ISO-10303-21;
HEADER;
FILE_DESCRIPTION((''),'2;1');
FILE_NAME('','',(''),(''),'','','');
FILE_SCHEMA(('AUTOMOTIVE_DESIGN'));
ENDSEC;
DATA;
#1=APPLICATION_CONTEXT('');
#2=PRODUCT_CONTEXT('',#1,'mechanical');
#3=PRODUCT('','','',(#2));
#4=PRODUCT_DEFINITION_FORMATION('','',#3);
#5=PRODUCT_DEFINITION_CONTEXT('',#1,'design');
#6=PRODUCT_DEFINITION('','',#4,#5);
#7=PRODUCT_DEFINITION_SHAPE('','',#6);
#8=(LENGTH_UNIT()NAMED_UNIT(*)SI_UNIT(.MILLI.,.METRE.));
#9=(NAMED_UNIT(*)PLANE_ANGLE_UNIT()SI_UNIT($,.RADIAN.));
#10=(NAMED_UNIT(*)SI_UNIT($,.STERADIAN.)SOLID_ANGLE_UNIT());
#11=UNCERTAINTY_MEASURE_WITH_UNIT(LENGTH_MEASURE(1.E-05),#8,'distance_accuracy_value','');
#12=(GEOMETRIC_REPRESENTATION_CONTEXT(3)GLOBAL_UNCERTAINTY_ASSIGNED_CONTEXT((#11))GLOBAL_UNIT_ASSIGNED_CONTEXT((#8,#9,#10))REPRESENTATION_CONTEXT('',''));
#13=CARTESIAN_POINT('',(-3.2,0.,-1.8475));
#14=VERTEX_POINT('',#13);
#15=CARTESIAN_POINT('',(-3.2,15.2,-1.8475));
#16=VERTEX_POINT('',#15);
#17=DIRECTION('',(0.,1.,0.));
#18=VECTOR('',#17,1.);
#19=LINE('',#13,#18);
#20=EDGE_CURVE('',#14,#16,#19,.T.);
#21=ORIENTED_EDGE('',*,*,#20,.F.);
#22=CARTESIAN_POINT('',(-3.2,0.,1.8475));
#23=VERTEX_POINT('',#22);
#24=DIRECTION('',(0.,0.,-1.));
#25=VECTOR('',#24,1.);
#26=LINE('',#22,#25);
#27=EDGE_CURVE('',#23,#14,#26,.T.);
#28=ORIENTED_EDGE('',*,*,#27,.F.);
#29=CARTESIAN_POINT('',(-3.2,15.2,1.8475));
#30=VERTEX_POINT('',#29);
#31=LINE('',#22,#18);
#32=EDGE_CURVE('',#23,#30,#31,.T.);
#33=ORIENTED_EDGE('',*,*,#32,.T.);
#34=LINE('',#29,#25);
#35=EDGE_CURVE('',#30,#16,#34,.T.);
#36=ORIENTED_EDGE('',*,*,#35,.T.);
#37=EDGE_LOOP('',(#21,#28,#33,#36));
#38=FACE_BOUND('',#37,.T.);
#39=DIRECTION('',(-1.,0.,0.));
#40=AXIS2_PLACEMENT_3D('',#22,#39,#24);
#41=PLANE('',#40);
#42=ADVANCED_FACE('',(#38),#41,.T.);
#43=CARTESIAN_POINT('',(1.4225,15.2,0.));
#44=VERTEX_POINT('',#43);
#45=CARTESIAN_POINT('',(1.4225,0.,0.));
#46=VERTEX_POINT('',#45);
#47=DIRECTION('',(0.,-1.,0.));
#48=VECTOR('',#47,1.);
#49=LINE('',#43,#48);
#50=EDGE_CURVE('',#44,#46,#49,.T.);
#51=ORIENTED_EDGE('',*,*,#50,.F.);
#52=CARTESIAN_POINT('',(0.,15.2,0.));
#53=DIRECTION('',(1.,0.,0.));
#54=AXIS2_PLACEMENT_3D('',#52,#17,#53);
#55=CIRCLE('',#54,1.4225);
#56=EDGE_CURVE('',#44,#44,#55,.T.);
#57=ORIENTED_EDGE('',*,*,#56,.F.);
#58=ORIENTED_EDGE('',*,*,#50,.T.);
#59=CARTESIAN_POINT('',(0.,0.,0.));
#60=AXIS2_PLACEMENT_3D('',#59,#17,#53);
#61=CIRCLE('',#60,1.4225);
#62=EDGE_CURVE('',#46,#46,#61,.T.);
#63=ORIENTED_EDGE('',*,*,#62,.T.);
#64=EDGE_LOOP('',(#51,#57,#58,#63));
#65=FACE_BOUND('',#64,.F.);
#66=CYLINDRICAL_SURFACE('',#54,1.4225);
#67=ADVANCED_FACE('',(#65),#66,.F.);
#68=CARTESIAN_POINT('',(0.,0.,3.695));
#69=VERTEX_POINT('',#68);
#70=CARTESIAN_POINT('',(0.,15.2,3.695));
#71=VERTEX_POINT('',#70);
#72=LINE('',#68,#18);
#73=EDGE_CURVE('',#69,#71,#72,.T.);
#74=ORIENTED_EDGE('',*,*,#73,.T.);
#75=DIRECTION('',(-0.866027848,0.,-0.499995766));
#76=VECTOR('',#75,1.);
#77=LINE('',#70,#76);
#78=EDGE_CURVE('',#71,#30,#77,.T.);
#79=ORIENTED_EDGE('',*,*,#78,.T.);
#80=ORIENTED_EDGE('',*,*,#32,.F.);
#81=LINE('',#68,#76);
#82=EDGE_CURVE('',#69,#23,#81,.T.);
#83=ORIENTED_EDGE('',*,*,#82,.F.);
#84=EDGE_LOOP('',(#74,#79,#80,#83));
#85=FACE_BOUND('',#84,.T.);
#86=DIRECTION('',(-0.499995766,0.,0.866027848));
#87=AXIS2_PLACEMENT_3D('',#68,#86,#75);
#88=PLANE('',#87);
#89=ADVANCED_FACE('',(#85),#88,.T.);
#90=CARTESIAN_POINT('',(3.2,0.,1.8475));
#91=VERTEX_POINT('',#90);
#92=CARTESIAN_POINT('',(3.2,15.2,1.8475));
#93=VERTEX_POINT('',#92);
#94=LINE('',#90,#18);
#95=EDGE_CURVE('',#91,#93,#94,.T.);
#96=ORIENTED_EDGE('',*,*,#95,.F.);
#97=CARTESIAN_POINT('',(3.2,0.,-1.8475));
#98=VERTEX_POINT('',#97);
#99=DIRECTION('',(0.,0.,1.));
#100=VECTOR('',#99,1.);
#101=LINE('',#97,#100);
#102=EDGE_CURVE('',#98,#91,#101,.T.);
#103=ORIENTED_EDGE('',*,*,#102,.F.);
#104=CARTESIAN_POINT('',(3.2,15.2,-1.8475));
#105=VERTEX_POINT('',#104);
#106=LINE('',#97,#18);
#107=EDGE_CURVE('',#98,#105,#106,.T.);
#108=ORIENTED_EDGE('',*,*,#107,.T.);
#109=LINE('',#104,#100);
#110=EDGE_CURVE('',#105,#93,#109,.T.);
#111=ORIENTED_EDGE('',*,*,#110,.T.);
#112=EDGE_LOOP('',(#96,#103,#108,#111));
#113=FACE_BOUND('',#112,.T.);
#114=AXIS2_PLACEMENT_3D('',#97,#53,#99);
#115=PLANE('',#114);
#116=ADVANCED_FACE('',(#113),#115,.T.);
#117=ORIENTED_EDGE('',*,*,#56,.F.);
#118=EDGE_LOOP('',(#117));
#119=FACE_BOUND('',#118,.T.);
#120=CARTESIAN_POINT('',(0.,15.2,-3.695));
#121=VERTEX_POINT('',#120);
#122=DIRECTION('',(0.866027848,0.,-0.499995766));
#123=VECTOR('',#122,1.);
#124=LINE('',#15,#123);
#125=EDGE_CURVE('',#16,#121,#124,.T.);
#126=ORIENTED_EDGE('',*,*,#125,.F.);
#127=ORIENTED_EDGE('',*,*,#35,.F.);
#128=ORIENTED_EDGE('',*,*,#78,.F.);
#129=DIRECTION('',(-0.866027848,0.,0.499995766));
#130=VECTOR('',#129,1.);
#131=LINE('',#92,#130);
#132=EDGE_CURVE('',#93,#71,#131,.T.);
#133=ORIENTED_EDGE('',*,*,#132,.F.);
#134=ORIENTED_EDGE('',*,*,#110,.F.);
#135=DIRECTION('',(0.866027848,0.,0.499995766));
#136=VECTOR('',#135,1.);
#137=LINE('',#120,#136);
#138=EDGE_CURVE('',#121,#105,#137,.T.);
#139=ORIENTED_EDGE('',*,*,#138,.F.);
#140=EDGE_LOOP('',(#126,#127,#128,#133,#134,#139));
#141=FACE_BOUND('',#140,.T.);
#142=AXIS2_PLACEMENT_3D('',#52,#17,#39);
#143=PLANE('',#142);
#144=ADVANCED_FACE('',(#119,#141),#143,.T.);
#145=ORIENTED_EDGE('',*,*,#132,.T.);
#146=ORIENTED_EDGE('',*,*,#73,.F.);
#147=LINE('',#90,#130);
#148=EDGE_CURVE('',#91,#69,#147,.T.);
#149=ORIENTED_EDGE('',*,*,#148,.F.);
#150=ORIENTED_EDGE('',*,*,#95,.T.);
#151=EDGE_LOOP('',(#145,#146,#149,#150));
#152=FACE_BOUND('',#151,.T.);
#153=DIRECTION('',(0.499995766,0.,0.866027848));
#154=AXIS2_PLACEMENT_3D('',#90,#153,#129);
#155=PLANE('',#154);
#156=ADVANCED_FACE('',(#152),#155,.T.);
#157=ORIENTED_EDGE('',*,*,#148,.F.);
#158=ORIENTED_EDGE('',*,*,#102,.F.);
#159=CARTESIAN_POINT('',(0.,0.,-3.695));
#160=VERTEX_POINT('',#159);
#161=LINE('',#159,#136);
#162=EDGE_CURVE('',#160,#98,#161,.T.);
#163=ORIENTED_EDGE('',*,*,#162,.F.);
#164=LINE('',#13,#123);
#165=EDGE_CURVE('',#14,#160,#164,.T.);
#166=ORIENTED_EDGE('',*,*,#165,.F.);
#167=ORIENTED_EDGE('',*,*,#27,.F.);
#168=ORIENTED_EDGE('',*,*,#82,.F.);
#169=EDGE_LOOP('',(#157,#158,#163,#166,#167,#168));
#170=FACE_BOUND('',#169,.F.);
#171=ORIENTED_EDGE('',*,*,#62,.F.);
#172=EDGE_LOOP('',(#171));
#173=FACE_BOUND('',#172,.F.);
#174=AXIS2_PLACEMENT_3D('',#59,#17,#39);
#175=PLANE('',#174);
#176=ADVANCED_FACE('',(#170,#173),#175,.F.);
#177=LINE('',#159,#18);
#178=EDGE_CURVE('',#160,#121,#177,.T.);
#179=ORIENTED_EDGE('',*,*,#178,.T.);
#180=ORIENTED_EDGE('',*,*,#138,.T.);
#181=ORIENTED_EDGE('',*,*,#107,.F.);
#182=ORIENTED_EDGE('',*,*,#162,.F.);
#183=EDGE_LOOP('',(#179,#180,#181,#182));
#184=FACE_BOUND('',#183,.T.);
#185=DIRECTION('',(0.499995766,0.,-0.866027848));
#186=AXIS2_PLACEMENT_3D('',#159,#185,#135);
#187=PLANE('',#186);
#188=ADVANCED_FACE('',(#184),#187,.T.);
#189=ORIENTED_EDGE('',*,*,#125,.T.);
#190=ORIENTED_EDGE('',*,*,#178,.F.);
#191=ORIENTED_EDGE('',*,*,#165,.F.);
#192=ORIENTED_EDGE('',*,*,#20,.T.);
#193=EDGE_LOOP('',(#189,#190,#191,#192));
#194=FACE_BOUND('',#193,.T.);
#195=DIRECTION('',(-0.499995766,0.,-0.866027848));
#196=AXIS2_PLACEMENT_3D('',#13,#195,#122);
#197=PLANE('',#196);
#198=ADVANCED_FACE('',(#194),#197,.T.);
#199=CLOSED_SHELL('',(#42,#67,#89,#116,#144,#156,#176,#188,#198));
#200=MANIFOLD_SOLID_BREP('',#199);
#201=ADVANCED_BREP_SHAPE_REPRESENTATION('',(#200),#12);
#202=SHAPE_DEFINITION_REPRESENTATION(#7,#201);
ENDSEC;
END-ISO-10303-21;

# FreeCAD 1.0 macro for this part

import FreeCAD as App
import Part
import Sketcher
from FreeCAD import Vector
Q = App.Units.Quantity


def add_polygon(sketch, points):
    """Adds a closed chain of lines whose ends are joined by coincident constraints."""
    first, n = sketch.GeometryCount, len(points)
    for a, b in zip(points, points[1:] + points[:1]):
        sketch.addGeometry(Part.LineSegment(App.Vector(*a, 0), App.Vector(*b, 0)), False)
    for i in range(n):
        sketch.addConstraint(Sketcher.Constraint("Coincident", first + i, 2, first + (i + 1) % n, 1))

doc = App.newDocument("Part")
params = doc.addObject("Spreadsheet::Sheet", "Params")
for row, (alias, value) in enumerate([
    ("pad1_length", "15.2 mm"),
], start=1):
    params.set(f"A{row}", alias)
    params.set(f"B{row}", "=" + value)
    params.setAlias(f"B{row}", alias)

body = doc.addObject("PartDesign::Body", "Body")

# Sketch on XZ plane
sketch1 = body.newObject("Sketcher::SketchObject", "Sketch")
sketch1.AttachmentSupport = (doc.getObject("XZ_Plane"), [""])
sketch1.MapMode = "FlatFace"
add_polygon(sketch1, [(-3.2, -1.8), (-3.2, 1.8), (0, 3.7), (3.2, 1.8), (3.2, -1.8), (0, -3.7)])  # lines 0-5
sketch1.addConstraint([
    Sketcher.Constraint("Vertical", 0),
    Sketcher.Constraint("Vertical", 3),
    Sketcher.Constraint("Symmetric", 0, 2, 3, 2, -1, 1),
    Sketcher.Constraint("Symmetric", 1, 2, 4, 2, -1, 1),
    Sketcher.Constraint("PointOnObject", 1, 2, -2),
    Sketcher.Constraint("Parallel", 2, 5),
    Sketcher.Constraint("Horizontal", 0, 2, 2, 2),
    Sketcher.Constraint("DistanceX", 0, 2, 2, 2, 6.4),
    Sketcher.Constraint("Angle", 1, Q("29.9997 deg")),
    Sketcher.Constraint("DistanceY", 0, 1, 0, 2, 3.695),
])
pad1 = body.newObject("PartDesign::Pad", "Pad")
pad1.Profile = sketch1
pad1.setExpression("Length", "Params.pad1_length")
pad1.Reversed = True

# Sketch on XZ plane
sketch2 = body.newObject("Sketcher::SketchObject", "Sketch001")
sketch2.AttachmentSupport = (doc.getObject("XZ_Plane"), [""])
sketch2.MapMode = "FlatFace"
sketch2.AttachmentOffset = App.Placement(Vector(0, 0, -15.2), App.Rotation())
sketch2.addGeometry(Part.Circle(Vector(0, 0, 0), Vector(0, 0, 1), 1.4), False)
sketch2.addConstraint([
    Sketcher.Constraint("Coincident", 0, 3, -1, 1),
    Sketcher.Constraint("Diameter", 0, 2.845),
])
pocket1 = body.newObject("PartDesign::Pocket", "Pocket")
pocket1.Profile = sketch2
pocket1.Type = "ThroughAll"
pocket1.Reversed = True

doc.recompute()
